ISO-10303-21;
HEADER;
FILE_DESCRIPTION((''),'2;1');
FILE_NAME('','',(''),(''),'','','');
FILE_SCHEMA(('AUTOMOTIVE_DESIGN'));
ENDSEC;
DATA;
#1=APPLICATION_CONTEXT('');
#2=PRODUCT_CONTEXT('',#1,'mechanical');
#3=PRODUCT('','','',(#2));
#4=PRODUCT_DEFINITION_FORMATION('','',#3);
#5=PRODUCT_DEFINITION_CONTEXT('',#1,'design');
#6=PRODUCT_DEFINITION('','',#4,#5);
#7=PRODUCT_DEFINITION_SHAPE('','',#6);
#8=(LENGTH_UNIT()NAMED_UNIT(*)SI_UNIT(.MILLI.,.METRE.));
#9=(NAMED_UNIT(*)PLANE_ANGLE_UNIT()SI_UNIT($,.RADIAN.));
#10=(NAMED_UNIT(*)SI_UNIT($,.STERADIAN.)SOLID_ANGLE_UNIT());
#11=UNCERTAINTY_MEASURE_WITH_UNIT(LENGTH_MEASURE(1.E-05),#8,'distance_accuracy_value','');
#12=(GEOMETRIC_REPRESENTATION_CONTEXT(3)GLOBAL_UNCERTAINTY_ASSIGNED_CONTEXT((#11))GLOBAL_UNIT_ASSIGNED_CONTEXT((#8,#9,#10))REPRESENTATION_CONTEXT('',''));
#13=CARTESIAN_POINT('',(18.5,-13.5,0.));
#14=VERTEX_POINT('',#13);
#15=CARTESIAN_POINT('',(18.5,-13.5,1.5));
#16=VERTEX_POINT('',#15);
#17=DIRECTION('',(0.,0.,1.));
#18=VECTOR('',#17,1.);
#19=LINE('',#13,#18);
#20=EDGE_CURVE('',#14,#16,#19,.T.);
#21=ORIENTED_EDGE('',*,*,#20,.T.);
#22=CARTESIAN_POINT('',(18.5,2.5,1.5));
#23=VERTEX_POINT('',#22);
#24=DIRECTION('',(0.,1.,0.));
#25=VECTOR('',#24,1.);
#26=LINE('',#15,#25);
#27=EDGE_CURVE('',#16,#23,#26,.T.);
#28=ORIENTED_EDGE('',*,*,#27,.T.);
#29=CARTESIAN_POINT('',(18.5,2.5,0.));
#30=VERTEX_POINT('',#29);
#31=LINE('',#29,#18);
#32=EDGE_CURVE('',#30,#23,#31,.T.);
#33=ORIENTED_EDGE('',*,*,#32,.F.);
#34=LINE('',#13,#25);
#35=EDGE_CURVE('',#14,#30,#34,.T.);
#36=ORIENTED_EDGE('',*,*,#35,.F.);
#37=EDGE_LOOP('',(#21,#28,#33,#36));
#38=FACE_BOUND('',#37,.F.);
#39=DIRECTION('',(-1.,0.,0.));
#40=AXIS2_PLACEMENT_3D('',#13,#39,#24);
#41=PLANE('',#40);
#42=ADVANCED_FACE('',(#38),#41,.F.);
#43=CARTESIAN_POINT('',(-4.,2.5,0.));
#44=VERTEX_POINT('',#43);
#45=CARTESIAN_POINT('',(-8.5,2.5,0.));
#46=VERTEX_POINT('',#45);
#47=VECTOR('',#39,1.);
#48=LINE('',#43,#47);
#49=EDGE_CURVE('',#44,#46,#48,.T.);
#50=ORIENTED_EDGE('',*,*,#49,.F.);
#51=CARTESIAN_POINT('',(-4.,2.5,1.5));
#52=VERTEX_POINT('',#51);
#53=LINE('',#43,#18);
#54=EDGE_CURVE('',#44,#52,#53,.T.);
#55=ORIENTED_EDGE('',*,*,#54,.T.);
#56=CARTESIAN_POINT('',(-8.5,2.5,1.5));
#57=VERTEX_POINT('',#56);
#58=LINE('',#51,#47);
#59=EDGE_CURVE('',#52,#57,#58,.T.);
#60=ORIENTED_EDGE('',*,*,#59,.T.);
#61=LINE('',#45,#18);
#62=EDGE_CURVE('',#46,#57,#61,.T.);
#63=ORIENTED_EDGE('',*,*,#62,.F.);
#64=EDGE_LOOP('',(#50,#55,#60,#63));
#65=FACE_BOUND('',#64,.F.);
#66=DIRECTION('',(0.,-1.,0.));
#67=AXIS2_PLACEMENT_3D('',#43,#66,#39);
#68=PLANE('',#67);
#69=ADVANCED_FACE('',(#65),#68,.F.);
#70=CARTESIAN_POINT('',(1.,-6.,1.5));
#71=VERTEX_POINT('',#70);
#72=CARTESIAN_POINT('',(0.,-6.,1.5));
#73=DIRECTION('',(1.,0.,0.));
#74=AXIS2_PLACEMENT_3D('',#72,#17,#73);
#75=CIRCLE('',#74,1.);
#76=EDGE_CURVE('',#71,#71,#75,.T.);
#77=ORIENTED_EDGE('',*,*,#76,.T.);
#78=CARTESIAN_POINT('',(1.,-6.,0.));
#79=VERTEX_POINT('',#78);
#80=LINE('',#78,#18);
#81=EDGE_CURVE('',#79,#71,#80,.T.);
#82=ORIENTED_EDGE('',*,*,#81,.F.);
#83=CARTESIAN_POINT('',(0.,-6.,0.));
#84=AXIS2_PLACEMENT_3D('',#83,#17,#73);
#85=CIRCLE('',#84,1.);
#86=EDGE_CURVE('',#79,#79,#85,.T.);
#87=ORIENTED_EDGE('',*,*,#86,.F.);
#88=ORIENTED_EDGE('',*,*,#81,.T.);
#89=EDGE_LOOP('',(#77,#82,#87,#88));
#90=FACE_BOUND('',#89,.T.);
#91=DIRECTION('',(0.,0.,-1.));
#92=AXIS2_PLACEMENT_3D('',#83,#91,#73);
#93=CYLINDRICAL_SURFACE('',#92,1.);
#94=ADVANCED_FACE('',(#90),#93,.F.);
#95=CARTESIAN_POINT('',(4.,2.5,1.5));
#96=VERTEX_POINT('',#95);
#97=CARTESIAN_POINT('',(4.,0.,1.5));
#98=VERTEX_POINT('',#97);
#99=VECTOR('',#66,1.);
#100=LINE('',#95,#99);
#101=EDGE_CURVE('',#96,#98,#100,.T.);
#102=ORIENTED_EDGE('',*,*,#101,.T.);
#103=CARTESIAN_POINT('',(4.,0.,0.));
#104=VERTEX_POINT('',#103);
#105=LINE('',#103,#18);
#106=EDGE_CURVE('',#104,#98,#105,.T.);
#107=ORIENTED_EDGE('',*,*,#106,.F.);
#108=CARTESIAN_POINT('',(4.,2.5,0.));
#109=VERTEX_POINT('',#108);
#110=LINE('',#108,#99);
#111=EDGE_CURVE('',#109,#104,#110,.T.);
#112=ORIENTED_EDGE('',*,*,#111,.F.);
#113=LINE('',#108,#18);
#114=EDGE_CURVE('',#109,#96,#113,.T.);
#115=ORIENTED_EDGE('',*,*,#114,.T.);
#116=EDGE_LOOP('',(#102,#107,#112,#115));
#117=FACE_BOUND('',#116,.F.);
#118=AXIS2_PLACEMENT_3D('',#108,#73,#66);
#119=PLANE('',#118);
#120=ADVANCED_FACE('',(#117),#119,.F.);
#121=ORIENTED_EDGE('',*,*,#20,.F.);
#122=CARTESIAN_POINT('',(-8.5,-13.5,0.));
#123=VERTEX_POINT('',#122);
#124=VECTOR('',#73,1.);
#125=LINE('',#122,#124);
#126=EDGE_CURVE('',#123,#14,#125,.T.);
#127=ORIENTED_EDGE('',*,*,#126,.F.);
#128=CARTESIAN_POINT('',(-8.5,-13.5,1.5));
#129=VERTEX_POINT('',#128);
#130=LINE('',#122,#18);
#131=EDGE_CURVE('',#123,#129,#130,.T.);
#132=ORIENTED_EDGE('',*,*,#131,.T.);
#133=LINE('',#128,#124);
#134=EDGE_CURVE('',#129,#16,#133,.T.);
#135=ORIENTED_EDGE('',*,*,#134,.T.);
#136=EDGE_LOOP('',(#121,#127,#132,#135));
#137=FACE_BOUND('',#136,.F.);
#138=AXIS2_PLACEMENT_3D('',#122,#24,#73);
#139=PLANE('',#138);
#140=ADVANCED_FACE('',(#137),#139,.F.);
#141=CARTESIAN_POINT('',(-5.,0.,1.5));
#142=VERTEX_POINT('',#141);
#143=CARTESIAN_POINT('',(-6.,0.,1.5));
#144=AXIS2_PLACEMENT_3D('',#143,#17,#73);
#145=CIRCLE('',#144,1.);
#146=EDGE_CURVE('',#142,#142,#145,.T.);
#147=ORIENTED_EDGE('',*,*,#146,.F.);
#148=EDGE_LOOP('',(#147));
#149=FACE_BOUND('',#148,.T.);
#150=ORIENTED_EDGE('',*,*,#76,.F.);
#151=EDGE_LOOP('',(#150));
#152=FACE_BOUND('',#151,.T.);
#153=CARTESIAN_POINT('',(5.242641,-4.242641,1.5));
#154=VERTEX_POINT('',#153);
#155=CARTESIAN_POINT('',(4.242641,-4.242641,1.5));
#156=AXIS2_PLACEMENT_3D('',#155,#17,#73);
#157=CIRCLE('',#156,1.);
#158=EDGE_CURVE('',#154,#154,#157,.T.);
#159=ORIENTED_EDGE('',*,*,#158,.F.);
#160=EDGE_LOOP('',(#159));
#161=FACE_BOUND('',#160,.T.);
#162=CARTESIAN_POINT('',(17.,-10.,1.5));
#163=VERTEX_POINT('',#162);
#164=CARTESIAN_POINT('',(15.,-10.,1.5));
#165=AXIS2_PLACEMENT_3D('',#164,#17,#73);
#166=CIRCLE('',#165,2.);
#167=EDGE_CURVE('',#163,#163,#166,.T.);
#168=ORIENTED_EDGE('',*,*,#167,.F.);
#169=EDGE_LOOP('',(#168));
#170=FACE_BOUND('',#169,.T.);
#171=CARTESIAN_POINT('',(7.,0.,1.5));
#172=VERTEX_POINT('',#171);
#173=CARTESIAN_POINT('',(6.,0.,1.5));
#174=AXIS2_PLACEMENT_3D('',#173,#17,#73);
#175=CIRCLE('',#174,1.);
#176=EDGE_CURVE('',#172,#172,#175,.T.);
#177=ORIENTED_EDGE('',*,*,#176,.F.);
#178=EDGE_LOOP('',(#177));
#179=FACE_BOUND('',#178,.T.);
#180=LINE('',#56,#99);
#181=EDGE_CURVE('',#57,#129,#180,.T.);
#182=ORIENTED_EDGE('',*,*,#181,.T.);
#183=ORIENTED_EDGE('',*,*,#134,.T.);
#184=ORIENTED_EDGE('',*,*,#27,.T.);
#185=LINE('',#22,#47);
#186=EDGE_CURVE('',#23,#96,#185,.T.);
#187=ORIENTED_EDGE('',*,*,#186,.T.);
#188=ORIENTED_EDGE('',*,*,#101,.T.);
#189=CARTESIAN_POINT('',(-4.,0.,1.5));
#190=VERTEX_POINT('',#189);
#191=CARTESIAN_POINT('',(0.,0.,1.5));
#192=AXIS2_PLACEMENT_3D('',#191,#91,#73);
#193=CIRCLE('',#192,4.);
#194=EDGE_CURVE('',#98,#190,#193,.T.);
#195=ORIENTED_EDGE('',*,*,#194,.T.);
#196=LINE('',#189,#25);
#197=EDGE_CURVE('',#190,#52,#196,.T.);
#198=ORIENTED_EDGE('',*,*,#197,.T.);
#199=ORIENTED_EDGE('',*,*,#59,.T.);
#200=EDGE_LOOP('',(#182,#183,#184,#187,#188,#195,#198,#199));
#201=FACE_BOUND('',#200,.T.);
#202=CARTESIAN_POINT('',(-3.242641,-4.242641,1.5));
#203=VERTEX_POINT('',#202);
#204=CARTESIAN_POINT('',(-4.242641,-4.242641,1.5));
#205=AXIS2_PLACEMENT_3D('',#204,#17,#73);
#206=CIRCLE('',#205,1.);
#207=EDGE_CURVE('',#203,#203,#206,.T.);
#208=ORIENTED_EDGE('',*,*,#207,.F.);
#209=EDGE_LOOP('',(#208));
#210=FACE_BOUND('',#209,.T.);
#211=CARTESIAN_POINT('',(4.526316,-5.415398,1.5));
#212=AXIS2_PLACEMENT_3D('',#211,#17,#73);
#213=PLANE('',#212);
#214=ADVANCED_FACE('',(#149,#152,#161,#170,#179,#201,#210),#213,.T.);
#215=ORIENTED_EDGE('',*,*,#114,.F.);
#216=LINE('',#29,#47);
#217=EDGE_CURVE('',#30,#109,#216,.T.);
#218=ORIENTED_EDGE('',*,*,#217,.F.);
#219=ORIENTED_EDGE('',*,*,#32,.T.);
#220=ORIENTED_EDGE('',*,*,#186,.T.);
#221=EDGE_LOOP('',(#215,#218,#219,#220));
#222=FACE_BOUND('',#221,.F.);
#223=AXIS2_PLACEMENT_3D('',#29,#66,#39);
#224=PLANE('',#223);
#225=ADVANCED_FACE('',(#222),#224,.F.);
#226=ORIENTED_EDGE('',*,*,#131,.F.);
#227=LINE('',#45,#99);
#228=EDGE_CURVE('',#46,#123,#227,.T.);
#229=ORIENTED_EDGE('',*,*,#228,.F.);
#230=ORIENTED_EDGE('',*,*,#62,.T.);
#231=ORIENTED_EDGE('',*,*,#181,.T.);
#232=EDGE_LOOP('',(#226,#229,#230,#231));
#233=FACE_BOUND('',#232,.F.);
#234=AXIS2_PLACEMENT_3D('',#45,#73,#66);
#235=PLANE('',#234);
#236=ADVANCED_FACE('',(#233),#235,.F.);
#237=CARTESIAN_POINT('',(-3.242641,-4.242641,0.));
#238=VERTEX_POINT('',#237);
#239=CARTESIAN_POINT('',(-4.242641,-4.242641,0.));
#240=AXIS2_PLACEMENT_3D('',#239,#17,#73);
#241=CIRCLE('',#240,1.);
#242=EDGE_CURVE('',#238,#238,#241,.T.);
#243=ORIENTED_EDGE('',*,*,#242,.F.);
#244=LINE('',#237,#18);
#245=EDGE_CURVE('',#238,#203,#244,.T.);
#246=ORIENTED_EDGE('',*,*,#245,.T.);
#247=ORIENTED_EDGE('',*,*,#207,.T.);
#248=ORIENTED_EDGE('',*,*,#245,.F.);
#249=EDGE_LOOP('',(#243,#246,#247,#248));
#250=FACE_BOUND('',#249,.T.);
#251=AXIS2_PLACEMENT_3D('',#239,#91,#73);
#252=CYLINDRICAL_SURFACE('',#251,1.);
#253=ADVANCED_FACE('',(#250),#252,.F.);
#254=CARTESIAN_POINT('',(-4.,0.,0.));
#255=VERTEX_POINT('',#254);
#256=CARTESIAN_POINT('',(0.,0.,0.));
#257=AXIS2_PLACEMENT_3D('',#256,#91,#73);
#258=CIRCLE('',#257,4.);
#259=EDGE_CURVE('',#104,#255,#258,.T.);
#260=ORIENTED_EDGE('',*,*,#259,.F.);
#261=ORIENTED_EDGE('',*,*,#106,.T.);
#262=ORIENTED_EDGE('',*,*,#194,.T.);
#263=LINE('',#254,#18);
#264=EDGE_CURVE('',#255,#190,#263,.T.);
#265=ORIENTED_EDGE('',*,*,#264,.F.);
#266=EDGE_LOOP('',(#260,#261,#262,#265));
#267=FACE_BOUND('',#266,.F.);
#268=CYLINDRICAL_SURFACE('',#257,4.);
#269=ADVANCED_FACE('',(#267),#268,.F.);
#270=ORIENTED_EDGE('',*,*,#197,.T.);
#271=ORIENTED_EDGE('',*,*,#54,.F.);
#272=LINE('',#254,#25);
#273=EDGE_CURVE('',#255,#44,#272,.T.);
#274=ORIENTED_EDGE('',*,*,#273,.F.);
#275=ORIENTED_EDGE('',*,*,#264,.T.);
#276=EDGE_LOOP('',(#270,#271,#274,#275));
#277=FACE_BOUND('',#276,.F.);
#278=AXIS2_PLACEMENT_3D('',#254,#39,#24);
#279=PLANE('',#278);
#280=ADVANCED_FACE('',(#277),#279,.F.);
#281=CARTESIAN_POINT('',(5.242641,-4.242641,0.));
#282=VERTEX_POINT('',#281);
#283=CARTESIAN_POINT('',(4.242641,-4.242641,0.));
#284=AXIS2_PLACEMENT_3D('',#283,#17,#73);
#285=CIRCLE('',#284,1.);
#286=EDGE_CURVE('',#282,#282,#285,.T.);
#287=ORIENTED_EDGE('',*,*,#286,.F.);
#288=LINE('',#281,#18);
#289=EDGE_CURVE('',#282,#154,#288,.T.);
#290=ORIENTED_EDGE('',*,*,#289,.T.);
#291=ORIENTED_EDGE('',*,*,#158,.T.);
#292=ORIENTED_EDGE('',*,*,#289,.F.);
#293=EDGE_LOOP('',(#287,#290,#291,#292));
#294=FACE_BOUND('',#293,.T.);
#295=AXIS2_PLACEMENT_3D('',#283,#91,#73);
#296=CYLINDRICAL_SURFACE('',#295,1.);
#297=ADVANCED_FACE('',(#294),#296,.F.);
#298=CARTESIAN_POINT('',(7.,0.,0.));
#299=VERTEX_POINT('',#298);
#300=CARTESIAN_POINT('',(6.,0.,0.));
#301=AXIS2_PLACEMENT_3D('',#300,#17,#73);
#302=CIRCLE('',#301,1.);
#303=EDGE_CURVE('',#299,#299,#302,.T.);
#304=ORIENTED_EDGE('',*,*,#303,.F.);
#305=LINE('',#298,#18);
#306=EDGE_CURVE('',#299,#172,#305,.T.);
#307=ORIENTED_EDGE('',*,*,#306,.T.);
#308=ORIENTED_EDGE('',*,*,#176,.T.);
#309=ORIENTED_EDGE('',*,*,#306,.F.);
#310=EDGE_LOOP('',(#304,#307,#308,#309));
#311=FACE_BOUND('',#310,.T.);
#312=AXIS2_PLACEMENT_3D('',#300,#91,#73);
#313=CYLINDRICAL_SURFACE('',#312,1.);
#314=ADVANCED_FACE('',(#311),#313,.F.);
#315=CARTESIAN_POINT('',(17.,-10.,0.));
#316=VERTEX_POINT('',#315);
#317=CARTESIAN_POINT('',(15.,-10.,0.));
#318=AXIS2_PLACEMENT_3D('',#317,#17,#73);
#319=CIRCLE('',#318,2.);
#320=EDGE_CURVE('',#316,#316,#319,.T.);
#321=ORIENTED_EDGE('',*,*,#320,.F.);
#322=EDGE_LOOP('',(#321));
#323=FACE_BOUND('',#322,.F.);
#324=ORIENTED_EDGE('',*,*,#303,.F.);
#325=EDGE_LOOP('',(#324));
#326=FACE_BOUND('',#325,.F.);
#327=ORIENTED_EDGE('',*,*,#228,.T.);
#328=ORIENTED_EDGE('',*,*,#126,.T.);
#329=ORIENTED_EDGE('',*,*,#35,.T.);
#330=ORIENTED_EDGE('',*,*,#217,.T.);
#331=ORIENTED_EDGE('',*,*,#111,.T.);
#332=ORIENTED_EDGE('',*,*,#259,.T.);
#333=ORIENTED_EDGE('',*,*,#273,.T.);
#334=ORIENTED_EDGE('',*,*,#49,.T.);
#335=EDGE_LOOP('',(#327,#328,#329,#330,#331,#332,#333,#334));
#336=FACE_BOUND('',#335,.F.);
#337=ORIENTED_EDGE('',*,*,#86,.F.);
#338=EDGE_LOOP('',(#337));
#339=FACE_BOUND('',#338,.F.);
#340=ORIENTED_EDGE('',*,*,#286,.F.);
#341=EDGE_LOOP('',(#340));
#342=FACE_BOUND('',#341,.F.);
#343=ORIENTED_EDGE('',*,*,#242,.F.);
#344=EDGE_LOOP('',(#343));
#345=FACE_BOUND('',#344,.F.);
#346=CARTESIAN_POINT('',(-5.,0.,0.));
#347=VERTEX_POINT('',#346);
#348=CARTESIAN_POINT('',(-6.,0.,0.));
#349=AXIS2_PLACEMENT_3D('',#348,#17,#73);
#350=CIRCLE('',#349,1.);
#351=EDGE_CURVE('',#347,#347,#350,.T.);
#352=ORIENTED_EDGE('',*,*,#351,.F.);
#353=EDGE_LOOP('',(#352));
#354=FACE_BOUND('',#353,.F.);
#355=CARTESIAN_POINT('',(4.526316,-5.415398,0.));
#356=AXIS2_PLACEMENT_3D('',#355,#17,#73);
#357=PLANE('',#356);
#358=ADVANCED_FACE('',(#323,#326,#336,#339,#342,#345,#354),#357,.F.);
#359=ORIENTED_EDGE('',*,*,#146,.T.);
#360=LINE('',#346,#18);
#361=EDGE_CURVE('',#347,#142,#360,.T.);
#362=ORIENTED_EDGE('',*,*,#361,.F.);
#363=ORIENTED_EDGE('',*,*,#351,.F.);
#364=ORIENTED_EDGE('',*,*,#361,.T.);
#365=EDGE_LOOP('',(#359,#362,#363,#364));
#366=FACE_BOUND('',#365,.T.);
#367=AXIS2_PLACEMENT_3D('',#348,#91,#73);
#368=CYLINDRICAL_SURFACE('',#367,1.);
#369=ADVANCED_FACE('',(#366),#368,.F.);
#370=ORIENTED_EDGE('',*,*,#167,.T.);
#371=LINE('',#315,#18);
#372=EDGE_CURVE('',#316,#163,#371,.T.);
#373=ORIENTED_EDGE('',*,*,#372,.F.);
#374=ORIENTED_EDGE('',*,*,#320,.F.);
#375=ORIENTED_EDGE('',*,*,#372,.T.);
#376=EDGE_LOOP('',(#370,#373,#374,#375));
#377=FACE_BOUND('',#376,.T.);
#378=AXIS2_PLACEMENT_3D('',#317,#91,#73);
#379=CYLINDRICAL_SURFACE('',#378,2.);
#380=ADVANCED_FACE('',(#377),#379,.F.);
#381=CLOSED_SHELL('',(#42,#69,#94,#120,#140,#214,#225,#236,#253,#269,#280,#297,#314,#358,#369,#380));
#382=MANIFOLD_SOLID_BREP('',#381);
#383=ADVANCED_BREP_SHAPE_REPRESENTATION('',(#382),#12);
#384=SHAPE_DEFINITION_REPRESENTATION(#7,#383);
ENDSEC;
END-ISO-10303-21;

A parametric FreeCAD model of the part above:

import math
import FreeCAD as App
import Part
import Sketcher

doc = App.newDocument("Part")
params = doc.addObject("Spreadsheet::Sheet", "Params")
for row, (alias, value) in enumerate([
    ("sketch1_diameter", "2 mm"),
    ("sketch1_diameter2", "4 mm"),
    ("sketch1_radius", "4 mm"),
    ("sketch1_width", "27 mm"),
    ("sketch1_height", "16 mm"),
    ("pad1_length", "1.5 mm"),
], start=1):
    params.set(f"A{row}", alias)
    params.set(f"B{row}", "=" + value)
    params.setAlias(f"B{row}", alias)

body = doc.addObject("PartDesign::Body", "Body")

# Sketch on XY plane
sketch1 = body.newObject("Sketcher::SketchObject", "Sketch")
sketch1.AttachmentSupport = (doc.getObject("XY_Plane"), [""])
sketch1.MapMode = "FlatFace"
sketch1.addGeometry([
    Part.ArcOfCircle(Part.Circle(App.Vector(0, 0, 0), App.Vector(0, 0, 1), 4), math.radians(180), math.radians(360)),  # 0
    Part.LineSegment(App.Vector(-4, 0, 0), App.Vector(-4, 2.5, 0)),  # 1
    Part.LineSegment(App.Vector(-4, 2.5, 0), App.Vector(-8.5, 2.5, 0)),  # 2
    Part.LineSegment(App.Vector(-8.5, 2.5, 0), App.Vector(-8.5, -13.5, 0)),  # 3
    Part.LineSegment(App.Vector(-8.5, -13.5, 0), App.Vector(18.5, -13.5, 0)),  # 4
    Part.LineSegment(App.Vector(18.5, -13.5, 0), App.Vector(18.5, 2.5, 0)),  # 5
    Part.LineSegment(App.Vector(18.5, 2.5, 0), App.Vector(4, 2.5, 0)),  # 6
    Part.LineSegment(App.Vector(4, 2.5, 0), App.Vector(4, 0, 0)),  # 7
    Part.Circle(App.Vector(0, -6, 0), App.Vector(0, 0, 1), 1),  # 8
    Part.Circle(App.Vector(15, -10, 0), App.Vector(0, 0, 1), 2),  # 9
    Part.Circle(App.Vector(-4.242641, -4.242641, 0), App.Vector(0, 0, 1), 1),  # 10
    Part.Circle(App.Vector(4.242641, -4.242641, 0), App.Vector(0, 0, 1), 1),  # 11
    Part.Circle(App.Vector(-6, 0, 0), App.Vector(0, 0, 1), 1),  # 12
    Part.Circle(App.Vector(6, 0, 0), App.Vector(0, 0, 1), 1),  # 13
], False)
sketch1.addConstraint([
    Sketcher.Constraint("Tangent", 0, 1, 1, 1),
    Sketcher.Constraint("Coincident", 1, 2, 2, 1),
    Sketcher.Constraint("Coincident", 2, 2, 3, 1),
    Sketcher.Constraint("Coincident", 3, 2, 4, 1),
    Sketcher.Constraint("Coincident", 4, 2, 5, 1),
    Sketcher.Constraint("Coincident", 5, 2, 6, 1),
    Sketcher.Constraint("Coincident", 6, 2, 7, 1),
    Sketcher.Constraint("Tangent", 7, 2, 0, 2),
    Sketcher.Constraint("Vertical", 1),
    Sketcher.Constraint("Horizontal", 2),
    Sketcher.Constraint("Vertical", 3),
    Sketcher.Constraint("Horizontal", 4),
    Sketcher.Constraint("Vertical", 5),
    Sketcher.Constraint("Horizontal", 6),
    Sketcher.Constraint("Vertical", 7),
    Sketcher.Constraint("Coincident", 0, 3, -1, 1),
    Sketcher.Constraint("Equal", 8, 10),
    Sketcher.Constraint("Equal", 10, 11),
    Sketcher.Constraint("Equal", 11, 12),
    Sketcher.Constraint("Equal", 12, 13),
    Sketcher.Constraint("Symmetric", 12, 3, 13, 3, -1, 1),
    Sketcher.Constraint("Symmetric", 10, 3, 11, 3, -2),
    Sketcher.Constraint("PointOnObject", 8, 3, -2),
    Sketcher.Constraint("PointOnObject", 12, 3, -1),
    Sketcher.Constraint("Horizontal", 2, 2, 5, 2),
    Sketcher.Constraint("Diameter", 8, 2.0),
    Sketcher.Constraint("Diameter", 9, 4.0),
    Sketcher.Constraint("Radius", 0, 4.0),
    Sketcher.Constraint("DistanceX", 4, 1, 4, 2, 27.0),
    Sketcher.Constraint("DistanceY", 3, 2, 3, 1, 16.0),
    Sketcher.Constraint("DistanceX", 2, 2, 2, 1, 4.5),
    Sketcher.Constraint("DistanceY", 1, 1, 1, 2, 2.5),
    Sketcher.Constraint("DistanceY", 8, 3, -1, 1, 6.0),
    Sketcher.Constraint("DistanceX", -1, 1, 9, 3, 15.0),
    Sketcher.Constraint("DistanceY", 9, 3, -1, 1, 10.0),
    Sketcher.Constraint("DistanceX", 12, 3, -1, 1, 6.0),
    Sketcher.Constraint("DistanceX", 10, 3, -1, 1, 4.242641),
    Sketcher.Constraint("DistanceY", 10, 3, -1, 1, 4.242641),
])
sketch1.setExpression("Constraints[25]", "Params.sketch1_diameter")
sketch1.setExpression("Constraints[26]", "Params.sketch1_diameter2")
sketch1.setExpression("Constraints[27]", "Params.sketch1_radius")
sketch1.setExpression("Constraints[28]", "Params.sketch1_width")
sketch1.setExpression("Constraints[29]", "Params.sketch1_height")
pad1 = body.newObject("PartDesign::Pad", "Pad")
pad1.Profile = sketch1
pad1.setExpression("Length", "Params.pad1_length")

doc.recompute()
